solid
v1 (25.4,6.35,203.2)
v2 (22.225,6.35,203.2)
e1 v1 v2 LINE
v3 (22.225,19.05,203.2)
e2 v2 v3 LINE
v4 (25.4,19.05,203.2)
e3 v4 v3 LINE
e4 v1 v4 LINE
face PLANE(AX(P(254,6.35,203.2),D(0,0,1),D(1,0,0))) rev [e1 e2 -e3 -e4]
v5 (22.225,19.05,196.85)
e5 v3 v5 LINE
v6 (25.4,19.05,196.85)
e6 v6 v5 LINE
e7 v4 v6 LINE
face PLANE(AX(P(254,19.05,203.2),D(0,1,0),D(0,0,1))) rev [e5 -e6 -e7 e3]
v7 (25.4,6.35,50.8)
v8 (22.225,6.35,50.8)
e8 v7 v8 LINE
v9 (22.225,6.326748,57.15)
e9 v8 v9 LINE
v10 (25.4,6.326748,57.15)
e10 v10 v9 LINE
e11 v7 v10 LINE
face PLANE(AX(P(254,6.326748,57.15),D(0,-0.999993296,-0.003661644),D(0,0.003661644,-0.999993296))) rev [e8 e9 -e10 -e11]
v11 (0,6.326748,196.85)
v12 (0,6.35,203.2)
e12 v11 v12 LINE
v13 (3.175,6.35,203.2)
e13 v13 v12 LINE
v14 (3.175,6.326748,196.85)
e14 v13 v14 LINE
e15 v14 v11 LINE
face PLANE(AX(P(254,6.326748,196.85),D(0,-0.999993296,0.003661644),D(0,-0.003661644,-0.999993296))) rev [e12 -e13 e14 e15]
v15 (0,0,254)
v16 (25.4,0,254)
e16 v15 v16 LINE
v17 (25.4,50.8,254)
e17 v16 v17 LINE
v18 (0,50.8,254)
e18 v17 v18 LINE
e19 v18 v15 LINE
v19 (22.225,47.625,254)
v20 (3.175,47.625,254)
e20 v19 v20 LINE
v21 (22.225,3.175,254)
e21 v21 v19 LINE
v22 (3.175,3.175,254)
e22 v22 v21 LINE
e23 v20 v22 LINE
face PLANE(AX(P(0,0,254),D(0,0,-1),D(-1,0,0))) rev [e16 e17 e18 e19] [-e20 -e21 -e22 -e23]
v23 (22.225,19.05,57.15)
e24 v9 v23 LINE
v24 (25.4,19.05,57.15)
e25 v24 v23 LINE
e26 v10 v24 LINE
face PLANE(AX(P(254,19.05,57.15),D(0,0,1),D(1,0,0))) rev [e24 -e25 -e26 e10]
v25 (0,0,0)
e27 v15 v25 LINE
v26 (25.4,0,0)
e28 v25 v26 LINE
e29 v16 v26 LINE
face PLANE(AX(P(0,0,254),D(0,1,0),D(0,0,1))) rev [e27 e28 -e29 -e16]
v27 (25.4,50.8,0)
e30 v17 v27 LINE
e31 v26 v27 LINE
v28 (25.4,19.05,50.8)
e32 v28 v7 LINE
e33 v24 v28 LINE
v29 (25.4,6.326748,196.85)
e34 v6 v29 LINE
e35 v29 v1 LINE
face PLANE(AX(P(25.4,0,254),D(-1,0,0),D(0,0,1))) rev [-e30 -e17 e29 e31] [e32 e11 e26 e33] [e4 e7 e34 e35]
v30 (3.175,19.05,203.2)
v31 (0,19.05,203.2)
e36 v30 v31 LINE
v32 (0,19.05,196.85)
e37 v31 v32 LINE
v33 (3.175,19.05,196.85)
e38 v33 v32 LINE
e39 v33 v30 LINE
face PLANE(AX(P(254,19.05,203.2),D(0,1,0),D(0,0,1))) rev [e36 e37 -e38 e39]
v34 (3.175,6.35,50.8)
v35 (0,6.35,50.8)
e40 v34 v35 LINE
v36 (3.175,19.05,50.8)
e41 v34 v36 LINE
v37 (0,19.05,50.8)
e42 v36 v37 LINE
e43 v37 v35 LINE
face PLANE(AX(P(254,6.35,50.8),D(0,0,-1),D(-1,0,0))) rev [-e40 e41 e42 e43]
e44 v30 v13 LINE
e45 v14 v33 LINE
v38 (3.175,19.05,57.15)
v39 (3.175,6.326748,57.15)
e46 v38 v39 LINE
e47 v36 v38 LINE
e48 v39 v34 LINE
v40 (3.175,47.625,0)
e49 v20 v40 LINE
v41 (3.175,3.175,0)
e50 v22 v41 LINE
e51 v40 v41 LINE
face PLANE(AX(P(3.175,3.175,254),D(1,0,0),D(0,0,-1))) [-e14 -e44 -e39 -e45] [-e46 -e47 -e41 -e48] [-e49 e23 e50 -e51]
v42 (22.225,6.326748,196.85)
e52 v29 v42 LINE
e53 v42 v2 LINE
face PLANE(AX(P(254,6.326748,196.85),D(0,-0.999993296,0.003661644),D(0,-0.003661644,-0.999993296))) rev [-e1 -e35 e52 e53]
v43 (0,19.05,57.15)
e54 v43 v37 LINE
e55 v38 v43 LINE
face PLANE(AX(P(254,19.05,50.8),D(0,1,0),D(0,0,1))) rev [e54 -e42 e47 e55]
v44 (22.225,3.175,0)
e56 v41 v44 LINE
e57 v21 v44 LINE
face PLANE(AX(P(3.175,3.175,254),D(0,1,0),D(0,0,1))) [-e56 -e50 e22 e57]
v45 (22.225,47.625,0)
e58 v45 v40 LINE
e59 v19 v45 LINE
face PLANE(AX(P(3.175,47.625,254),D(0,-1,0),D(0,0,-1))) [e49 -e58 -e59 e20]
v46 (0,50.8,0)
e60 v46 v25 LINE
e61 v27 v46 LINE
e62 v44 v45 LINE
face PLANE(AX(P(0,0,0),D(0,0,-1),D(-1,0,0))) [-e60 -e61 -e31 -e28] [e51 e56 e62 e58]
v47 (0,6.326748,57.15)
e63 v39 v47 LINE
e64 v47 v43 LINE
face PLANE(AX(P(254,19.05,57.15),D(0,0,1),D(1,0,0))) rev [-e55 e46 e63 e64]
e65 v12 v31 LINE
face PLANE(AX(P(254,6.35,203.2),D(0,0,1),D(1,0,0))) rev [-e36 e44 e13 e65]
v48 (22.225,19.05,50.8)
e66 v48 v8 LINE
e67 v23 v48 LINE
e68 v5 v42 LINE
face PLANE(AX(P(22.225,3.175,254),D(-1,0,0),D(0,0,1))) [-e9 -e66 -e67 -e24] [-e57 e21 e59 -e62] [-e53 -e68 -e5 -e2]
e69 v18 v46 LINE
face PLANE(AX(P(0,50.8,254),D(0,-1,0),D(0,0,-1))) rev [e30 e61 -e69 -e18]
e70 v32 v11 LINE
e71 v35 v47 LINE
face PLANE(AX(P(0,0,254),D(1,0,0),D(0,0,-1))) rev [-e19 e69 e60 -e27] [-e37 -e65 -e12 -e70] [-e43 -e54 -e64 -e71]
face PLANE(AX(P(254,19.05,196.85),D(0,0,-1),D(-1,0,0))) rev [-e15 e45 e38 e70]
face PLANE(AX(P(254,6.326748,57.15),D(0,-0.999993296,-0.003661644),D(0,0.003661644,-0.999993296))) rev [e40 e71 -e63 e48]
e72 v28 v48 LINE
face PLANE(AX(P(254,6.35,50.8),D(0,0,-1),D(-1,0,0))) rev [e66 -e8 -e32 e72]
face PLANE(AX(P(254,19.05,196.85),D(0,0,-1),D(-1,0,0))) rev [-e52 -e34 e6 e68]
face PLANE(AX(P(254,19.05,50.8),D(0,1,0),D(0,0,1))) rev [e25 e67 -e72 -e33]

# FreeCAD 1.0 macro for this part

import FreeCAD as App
import Part
import Sketcher

V = App.Vector
Q = App.Units.Quantity

doc = App.newDocument("Part")
body = doc.addObject("PartDesign::Body", "Body")

sketch1 = body.newObject("Sketcher::SketchObject", "Sketch")
sketch1.AttachmentSupport = (doc.getObject("XY_Plane"), [""])
sketch1.MapMode = "FlatFace"
sketch1.addGeometry([
    Part.LineSegment(V(0, 50.8, 0), V(0, 0, 0)),
    Part.LineSegment(V(0, 0, 0), V(25.4, 0, 0)),
    Part.LineSegment(V(25.4, 0, 0), V(25.4, 50.8, 0)),
    Part.LineSegment(V(25.4, 50.8, 0), V(0, 50.8, 0)),
    Part.LineSegment(V(22.225, 3.175, 0), V(3.175, 3.175, 0)),
    Part.LineSegment(V(3.175, 3.175, 0), V(3.175, 47.625, 0)),
    Part.LineSegment(V(3.175, 47.625, 0), V(22.225, 47.625, 0)),
    Part.LineSegment(V(22.225, 47.625, 0), V(22.225, 3.175, 0)),
], False)
sketch1.addConstraint([
    Sketcher.Constraint("Coincident", 0, 2, 1, 1),
    Sketcher.Constraint("Coincident", 1, 2, 2, 1),
    Sketcher.Constraint("Coincident", 2, 2, 3, 1),
    Sketcher.Constraint("Coincident", 3, 2, 0, 1),
    Sketcher.Constraint("Coincident", 4, 2, 5, 1),
    Sketcher.Constraint("Coincident", 5, 2, 6, 1),
    Sketcher.Constraint("Coincident", 6, 2, 7, 1),
    Sketcher.Constraint("Coincident", 7, 2, 4, 1),
    Sketcher.Constraint("Vertical", 0),
    Sketcher.Constraint("Horizontal", 1),
    Sketcher.Constraint("Vertical", 2),
    Sketcher.Constraint("Horizontal", 3),
    Sketcher.Constraint("Horizontal", 4),
    Sketcher.Constraint("Vertical", 5),
    Sketcher.Constraint("Horizontal", 6),
    Sketcher.Constraint("Vertical", 7),
    Sketcher.Constraint("Coincident", 0, 2, -1, 1),
    Sketcher.Constraint("DistanceX", 1, 1, 1, 2, Q("1 in")),
    Sketcher.Constraint("DistanceY", 0, 2, 0, 1, Q("2 in")),
    Sketcher.Constraint("DistanceX", 4, 2, 4, 1, Q("0.75 in")),
    Sketcher.Constraint("DistanceY", 5, 1, 5, 2, Q("1.75 in")),
    Sketcher.Constraint("DistanceX", -1, 1, 4, 2, Q("0.125 in")),
    Sketcher.Constraint("DistanceY", -1, 1, 4, 2, Q("0.125 in")),
])
pad1 = body.newObject("PartDesign::Pad", "Pad")
pad1.Profile = sketch1
pad1.Length = Q("10 in")

sketch2 = body.newObject("Sketcher::SketchObject", "Sketch001")
sketch2.AttachmentSupport = (doc.getObject("YZ_Plane"), [""])
sketch2.MapMode = "FlatFace"
sketch2.AttachmentOffset = App.Placement(V(0, 0, 1 * 25.4), App.Rotation())
sketch2.addGeometry([
    Part.Circle(V(12.7, 209.55, 0), V(0, 0, 1), 6.482173),
    Part.Circle(V(12.7, 44.45, 0), V(0, 0, 1), 6.482173),
], False)
sketch2.addConstraint([
    Sketcher.Constraint("Equal", 0, 1),
    Sketcher.Constraint("Vertical", 0, 3, 1, 3),
    Sketcher.Constraint("DistanceX", -1, 1, 0, 3, Q("0.5 in")),
    Sketcher.Constraint("DistanceY", 1, 3, 0, 3, Q("6.5 in")),
    Sketcher.Constraint("DistanceY", -1, 1, 0, 3, Q("8.25 in")),
    Sketcher.Constraint("Diameter", 0, 12.964347),
])
pocket1 = body.newObject("PartDesign::Pocket", "Pocket")
pocket1.Profile = sketch2
pocket1.Length = Q("10 in")

sketch3 = body.newObject("Sketcher::SketchObject", "Sketch002")
sketch3.AttachmentSupport = (doc.getObject("YZ_Plane"), [""])
sketch3.MapMode = "FlatFace"
sketch3.AttachmentOffset = App.Placement(V(0, 0, 1 * 25.4), App.Rotation())
sketch3.addGeometry([
    Part.Circle(V(12.7, 209.55, 0), V(0, 0, 1), 6.482173),
    Part.Circle(V(12.7, 44.45, 0), V(0, 0, 1), 6.482173),
], False)
sketch3.addConstraint([
    Sketcher.Constraint("Equal", 0, 1),
    Sketcher.Constraint("Vertical", 0, 3, 1, 3),
    Sketcher.Constraint("DistanceX", -1, 1, 0, 3, Q("0.5 in")),
    Sketcher.Constraint("DistanceY", 1, 3, 0, 3, Q("6.5 in")),
    Sketcher.Constraint("DistanceY", -1, 1, 0, 3, Q("8.25 in")),
    Sketcher.Constraint("Diameter", 0, 12.964347),
])
pad2 = body.newObject("PartDesign::Pad", "Pad001")
pad2.Profile = sketch3
pad2.Length = Q("1 in")
pad2.Reversed = True

sketch4 = body.newObject("Sketcher::SketchObject", "Sketch003")
sketch4.AttachmentSupport = (doc.getObject("XY_Plane"), [""])
sketch4.MapMode = "FlatFace"
sketch4.AttachmentOffset = App.Placement(V(0, 0, 10 * 25.4), App.Rotation())
sketch4.addGeometry([
    Part.LineSegment(V(3.175, 47.625, 0), V(3.175, 3.175, 0)),
    Part.LineSegment(V(3.175, 3.175, 0), V(22.225, 3.175, 0)),
    Part.LineSegment(V(22.225, 3.175, 0), V(22.225, 47.625, 0)),
    Part.LineSegment(V(22.225, 47.625, 0), V(3.175, 47.625, 0)),
], False)
sketch4.addConstraint([
    Sketcher.Constraint("Coincident", 0, 2, 1, 1),
    Sketcher.Constraint("Coincident", 1, 2, 2, 1),
    Sketcher.Constraint("Coincident", 2, 2, 3, 1),
    Sketcher.Constraint("Coincident", 3, 2, 0, 1),
    Sketcher.Constraint("Vertical", 0),
    Sketcher.Constraint("Horizontal", 1),
    Sketcher.Constraint("Vertical", 2),
    Sketcher.Constraint("Horizontal", 3),
    Sketcher.Constraint("DistanceX", 1, 1, 1, 2, Q("0.75 in")),
    Sketcher.Constraint("DistanceY", 0, 2, 0, 1, Q("1.75 in")),
    Sketcher.Constraint("DistanceX", -1, 1, 0, 2, Q("0.125 in")),
    Sketcher.Constraint("DistanceY", -1, 1, 0, 2, Q("0.125 in")),
])
pocket2 = body.newObject("PartDesign::Pocket", "Pocket001")
pocket2.Profile = sketch4
pocket2.Length = Q("10 in")

sketch5 = body.newObject("Sketcher::SketchObject", "Sketch004")
sketch5.AttachmentSupport = (doc.getObject("YZ_Plane"), [""])
sketch5.MapMode = "FlatFace"
sketch5.addGeometry([
    Part.LineSegment(V(19.05, 196.85, 0), V(6.326748, 196.85, 0)),
    Part.LineSegment(V(6.326748, 196.85, 0), V(6.35, 203.2, 0)),
    Part.LineSegment(V(6.35, 203.2, 0), V(19.05, 203.2, 0)),
    Part.LineSegment(V(19.05, 203.2, 0), V(19.05, 196.85, 0)),
    Part.LineSegment(V(6.35, 50.8, 0), V(6.326748, 57.15, 0)),
    Part.LineSegment(V(6.326748, 57.15, 0), V(19.05, 57.15, 0)),
    Part.LineSegment(V(19.05, 57.15, 0), V(19.05, 50.8, 0)),
    Part.LineSegment(V(19.05, 50.8, 0), V(6.35, 50.8, 0)),
], False)
sketch5.addConstraint([
    Sketcher.Constraint("Coincident", 0, 2, 1, 1),
    Sketcher.Constraint("Coincident", 1, 2, 2, 1),
    Sketcher.Constraint("Coincident", 2, 2, 3, 1),
    Sketcher.Constraint("Coincident", 3, 2, 0, 1),
    Sketcher.Constraint("Coincident", 4, 2, 5, 1),
    Sketcher.Constraint("Coincident", 5, 2, 6, 1),
    Sketcher.Constraint("Coincident", 6, 2, 7, 1),
    Sketcher.Constraint("Coincident", 7, 2, 4, 1),
    Sketcher.Constraint("Horizontal", 0),
    Sketcher.Constraint("Horizontal", 2),
    Sketcher.Constraint("Vertical", 3),
    Sketcher.Constraint("Horizontal", 5),
    Sketcher.Constraint("Vertical", 6),
    Sketcher.Constraint("Horizontal", 7),
    Sketcher.Constraint("Vertical", 0, 2, 4, 2),
    Sketcher.Constraint("Vertical", 3, 2, 5, 2),
    Sketcher.Constraint("Vertical", 1, 2, 7, 2),
    Sketcher.Constraint("Equal", 3, 6),
    Sketcher.Constraint("DistanceX", 2, 1, 2, 2, Q("0.5 in")),
    Sketcher.Constraint("DistanceY", -1, 1, 1, 2, Q("8 in")),
    Sketcher.Constraint("DistanceY", -1, 1, 6, 2, Q("2 in")),
    Sketcher.Constraint("DistanceY", 3, 2, 3, 1, Q("0.25 in")),
    Sketcher.Constraint("DistanceX", -1, 1, 1, 2, Q("0.25 in")),
    Sketcher.Constraint("DistanceX", 0, 2, 0, 1, 12.723252),
])
pocket3 = body.newObject("PartDesign::Pocket", "Pocket002")
pocket3.Profile = sketch5
pocket3.Length = Q("10 in")
pocket3.Reversed = True

doc.recompute()
